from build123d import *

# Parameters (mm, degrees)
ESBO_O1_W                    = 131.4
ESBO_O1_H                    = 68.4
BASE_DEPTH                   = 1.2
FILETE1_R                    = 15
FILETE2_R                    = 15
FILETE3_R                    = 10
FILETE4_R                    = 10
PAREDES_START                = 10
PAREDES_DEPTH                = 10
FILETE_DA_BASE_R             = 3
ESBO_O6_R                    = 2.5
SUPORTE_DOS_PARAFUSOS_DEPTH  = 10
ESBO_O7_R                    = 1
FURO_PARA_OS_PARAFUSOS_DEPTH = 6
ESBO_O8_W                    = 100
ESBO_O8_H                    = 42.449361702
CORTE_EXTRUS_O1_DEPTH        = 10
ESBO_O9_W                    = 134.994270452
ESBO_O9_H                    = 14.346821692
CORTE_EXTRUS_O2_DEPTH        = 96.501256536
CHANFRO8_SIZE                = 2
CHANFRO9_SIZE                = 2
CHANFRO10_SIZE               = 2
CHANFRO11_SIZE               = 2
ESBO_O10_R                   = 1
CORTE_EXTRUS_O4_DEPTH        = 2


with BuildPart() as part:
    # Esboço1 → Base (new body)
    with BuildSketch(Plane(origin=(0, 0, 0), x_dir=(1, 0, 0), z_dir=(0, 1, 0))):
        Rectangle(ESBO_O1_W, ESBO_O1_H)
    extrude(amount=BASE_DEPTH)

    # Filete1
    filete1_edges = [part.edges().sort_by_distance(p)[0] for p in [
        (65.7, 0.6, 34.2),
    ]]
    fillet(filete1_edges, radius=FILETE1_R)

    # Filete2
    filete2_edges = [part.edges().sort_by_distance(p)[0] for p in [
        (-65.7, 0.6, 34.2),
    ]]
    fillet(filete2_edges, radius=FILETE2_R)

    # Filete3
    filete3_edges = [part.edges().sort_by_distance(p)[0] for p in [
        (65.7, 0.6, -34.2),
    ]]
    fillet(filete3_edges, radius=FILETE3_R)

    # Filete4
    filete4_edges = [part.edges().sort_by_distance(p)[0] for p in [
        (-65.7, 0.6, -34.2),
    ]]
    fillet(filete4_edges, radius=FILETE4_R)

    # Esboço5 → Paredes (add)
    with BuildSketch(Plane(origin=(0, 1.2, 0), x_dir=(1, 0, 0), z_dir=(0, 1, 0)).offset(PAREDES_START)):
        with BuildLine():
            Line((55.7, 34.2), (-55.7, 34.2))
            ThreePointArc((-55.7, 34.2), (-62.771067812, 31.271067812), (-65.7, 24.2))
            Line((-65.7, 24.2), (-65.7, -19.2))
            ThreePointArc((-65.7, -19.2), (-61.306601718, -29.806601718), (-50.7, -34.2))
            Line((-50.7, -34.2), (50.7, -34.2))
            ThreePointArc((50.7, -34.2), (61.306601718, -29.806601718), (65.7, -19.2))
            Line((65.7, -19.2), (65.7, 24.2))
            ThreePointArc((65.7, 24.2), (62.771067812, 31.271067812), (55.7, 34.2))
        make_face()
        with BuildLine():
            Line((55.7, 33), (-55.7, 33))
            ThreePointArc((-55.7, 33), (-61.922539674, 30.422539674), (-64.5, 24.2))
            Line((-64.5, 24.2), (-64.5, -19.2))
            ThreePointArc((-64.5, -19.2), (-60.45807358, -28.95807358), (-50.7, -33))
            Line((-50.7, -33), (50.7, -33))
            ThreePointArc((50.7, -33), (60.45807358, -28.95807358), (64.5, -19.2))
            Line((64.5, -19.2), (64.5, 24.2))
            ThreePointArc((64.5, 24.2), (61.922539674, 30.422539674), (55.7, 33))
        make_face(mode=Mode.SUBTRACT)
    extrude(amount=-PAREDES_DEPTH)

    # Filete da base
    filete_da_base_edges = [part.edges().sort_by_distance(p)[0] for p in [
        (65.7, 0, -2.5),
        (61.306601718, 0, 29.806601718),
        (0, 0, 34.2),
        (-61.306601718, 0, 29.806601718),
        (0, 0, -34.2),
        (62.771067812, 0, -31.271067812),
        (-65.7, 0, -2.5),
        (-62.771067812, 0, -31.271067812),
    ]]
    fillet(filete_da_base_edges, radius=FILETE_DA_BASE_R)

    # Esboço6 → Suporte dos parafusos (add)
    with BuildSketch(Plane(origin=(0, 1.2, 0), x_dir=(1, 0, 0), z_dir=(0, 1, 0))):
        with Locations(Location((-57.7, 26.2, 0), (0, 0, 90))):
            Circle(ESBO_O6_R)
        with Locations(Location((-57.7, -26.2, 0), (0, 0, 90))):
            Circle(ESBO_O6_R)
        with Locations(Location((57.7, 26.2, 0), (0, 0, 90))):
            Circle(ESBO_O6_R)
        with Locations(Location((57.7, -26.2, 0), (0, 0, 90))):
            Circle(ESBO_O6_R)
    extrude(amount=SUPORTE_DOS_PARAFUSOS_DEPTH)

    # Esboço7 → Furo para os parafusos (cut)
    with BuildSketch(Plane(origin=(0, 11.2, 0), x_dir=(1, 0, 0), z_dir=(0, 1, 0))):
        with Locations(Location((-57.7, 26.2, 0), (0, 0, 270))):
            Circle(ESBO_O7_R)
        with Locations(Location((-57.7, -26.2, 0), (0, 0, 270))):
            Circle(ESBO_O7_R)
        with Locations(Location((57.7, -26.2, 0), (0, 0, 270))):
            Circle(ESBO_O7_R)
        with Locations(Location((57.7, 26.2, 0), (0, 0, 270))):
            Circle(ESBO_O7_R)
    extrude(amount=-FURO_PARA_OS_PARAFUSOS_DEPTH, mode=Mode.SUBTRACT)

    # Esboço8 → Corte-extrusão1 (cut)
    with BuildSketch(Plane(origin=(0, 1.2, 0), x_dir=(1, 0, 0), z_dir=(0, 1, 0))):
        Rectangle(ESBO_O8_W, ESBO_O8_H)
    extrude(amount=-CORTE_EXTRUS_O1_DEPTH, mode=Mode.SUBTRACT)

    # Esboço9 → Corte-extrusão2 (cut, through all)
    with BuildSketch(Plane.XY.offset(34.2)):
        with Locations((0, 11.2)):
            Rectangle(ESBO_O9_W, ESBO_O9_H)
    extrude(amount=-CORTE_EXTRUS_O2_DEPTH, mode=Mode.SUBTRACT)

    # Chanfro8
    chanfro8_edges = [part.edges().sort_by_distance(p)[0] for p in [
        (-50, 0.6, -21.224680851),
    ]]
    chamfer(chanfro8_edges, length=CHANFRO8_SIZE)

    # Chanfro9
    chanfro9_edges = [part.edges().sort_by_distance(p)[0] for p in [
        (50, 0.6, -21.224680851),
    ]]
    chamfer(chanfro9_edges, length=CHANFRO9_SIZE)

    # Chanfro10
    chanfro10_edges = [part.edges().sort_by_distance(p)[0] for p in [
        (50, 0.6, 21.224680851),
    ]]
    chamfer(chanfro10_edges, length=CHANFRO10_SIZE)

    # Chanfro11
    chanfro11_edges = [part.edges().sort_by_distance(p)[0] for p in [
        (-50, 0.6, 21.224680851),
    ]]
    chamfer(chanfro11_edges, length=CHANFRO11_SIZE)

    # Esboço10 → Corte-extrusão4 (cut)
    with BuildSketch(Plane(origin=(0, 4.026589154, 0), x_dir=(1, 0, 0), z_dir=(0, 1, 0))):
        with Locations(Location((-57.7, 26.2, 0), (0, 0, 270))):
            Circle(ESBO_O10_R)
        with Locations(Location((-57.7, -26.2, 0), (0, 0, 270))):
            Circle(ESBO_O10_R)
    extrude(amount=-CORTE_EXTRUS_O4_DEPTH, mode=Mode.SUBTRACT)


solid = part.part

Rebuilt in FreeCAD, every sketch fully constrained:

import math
import FreeCAD as App
import Part
import Sketcher

V = App.Vector
Q = App.Units.Quantity


def edges_at(feature, points):
    """Names of the edges that pass closest to the given points."""
    edges = feature.Shape.Edges
    near = lambda p: min(range(len(edges)), key=lambda i: edges[i].distToShape(Part.Vertex(*p))[0])
    return sorted({f"Edge{near(p) + 1}" for p in points})


def add_polygon(sketch, points):
    """Adds a closed chain of lines whose ends are joined by coincident constraints."""
    first, n = sketch.GeometryCount, len(points)
    for a, b in zip(points, points[1:] + points[:1]):
        sketch.addGeometry(Part.LineSegment(App.Vector(*a, 0), App.Vector(*b, 0)), False)
    for i in range(n):
        sketch.addConstraint(Sketcher.Constraint("Coincident", first + i, 2, first + (i + 1) % n, 1))

doc = App.newDocument("Part")
body = doc.addObject("PartDesign::Body", "Body")

sketch1 = body.newObject("Sketcher::SketchObject", "Sketch")
sketch1.AttachmentSupport = (doc.getObject("XZ_Plane"), [""])
sketch1.MapMode = "FlatFace"
add_polygon(sketch1, [(-65.7, -34.2), (-65.7, 34.2), (65.7, 34.2), (65.7, -34.2)])
sketch1.addConstraint([
    Sketcher.Constraint("Vertical", 0),
    Sketcher.Constraint("Horizontal", 1),
    Sketcher.Constraint("Vertical", 2),
    Sketcher.Constraint("Horizontal", 3),
    Sketcher.Constraint("Symmetric", 0, 2, 2, 2, -1, 1),
    Sketcher.Constraint("DistanceX", 1, 1, 1, 2, Q("131.4 mm")),
    Sketcher.Constraint("DistanceY", 0, 1, 0, 2, Q("68.4 mm")),
])
pad1 = body.newObject("PartDesign::Pad", "Pad")
pad1.Profile = sketch1
pad1.Length = 1.2
pad1.Reversed = True
doc.recompute()

fillet = body.newObject("PartDesign::Fillet", "Fillet")
fillet.Base = (pad1, edges_at(pad1, [(65.7, 0.6, 34.2)]))
fillet.Radius = 15
doc.recompute()

fillet2 = body.newObject("PartDesign::Fillet", "Fillet001")
fillet2.Base = (fillet, edges_at(fillet, [(-65.7, 0.6, 34.2)]))
fillet2.Radius = 15
doc.recompute()

fillet3 = body.newObject("PartDesign::Fillet", "Fillet002")
fillet3.Base = (fillet2, edges_at(fillet2, [(65.7, 0.6, -34.2)]))
fillet3.Radius = 10
doc.recompute()

fillet4 = body.newObject("PartDesign::Fillet", "Fillet003")
fillet4.Base = (fillet3, edges_at(fillet3, [(-65.7, 0.6, -34.2)]))
fillet4.Radius = 10

sketch2 = body.newObject("Sketcher::SketchObject", "Sketch001")
sketch2.AttachmentSupport = (doc.getObject("XZ_Plane"), [""])
sketch2.MapMode = "FlatFace"
sketch2.AttachmentOffset = App.Placement(V(0, 0, -11.2), App.Rotation())
sketch2.addGeometry([
    Part.LineSegment(V(55.7, -34.2, 0), V(-55.7, -34.2, 0)),
    Part.ArcOfCircle(Part.Circle(V(-55.7, -24.2, 0), V(0, 0, 1), 10), math.radians(180), math.radians(270)),
    Part.LineSegment(V(-65.7, -24.2, 0), V(-65.7, 19.2, 0)),
    Part.ArcOfCircle(Part.Circle(V(-50.7, 19.2, 0), V(0, 0, 1), 15), math.radians(90), math.radians(180)),
    Part.LineSegment(V(-50.7, 34.2, 0), V(50.7, 34.2, 0)),
    Part.ArcOfCircle(Part.Circle(V(50.7, 19.2, 0), V(0, 0, 1), 15), math.radians(0), math.radians(90)),
    Part.LineSegment(V(65.7, 19.2, 0), V(65.7, -24.2, 0)),
    Part.ArcOfCircle(Part.Circle(V(55.7, -24.2, 0), V(0, 0, 1), 10), math.radians(-90), math.radians(0)),
    Part.LineSegment(V(-55.7, -33, 0), V(55.7, -33, 0)),
    Part.ArcOfCircle(Part.Circle(V(55.7, -24.2, 0), V(0, 0, 1), 8.8), math.radians(-90), math.radians(0)),
    Part.LineSegment(V(64.5, -24.2, 0), V(64.5, 19.2, 0)),
    Part.ArcOfCircle(Part.Circle(V(50.7, 19.2, 0), V(0, 0, 1), 13.8), math.radians(0), math.radians(90)),
    Part.LineSegment(V(50.7, 33, 0), V(-50.7, 33, 0)),
    Part.ArcOfCircle(Part.Circle(V(-50.7, 19.2, 0), V(0, 0, 1), 13.8), math.radians(90), math.radians(180)),
    Part.LineSegment(V(-64.5, 19.2, 0), V(-64.5, -24.2, 0)),
    Part.ArcOfCircle(Part.Circle(V(-55.7, -24.2, 0), V(0, 0, 1), 8.8), math.radians(-180), math.radians(-90)),
], False)
sketch2.addConstraint([
    Sketcher.Constraint("Tangent", 0, 2, 1, 2),
    Sketcher.Constraint("Tangent", 1, 1, 2, 1),
    Sketcher.Constraint("Tangent", 2, 2, 3, 2),
    Sketcher.Constraint("Tangent", 3, 1, 4, 1),
    Sketcher.Constraint("Tangent", 4, 2, 5, 2),
    Sketcher.Constraint("Tangent", 5, 1, 6, 1),
    Sketcher.Constraint("Tangent", 6, 2, 7, 2),
    Sketcher.Constraint("Tangent", 7, 1, 0, 1),
    Sketcher.Constraint("Tangent", 8, 2, 9, 1),
    Sketcher.Constraint("Tangent", 9, 2, 10, 1),
    Sketcher.Constraint("Tangent", 10, 2, 11, 1),
    Sketcher.Constraint("Tangent", 11, 2, 12, 1),
    Sketcher.Constraint("Tangent", 12, 2, 13, 1),
    Sketcher.Constraint("Tangent", 13, 2, 14, 1),
    Sketcher.Constraint("Tangent", 14, 2, 15, 1),
    Sketcher.Constraint("Tangent", 15, 2, 8, 1),
    Sketcher.Constraint("Horizontal", 0),
    Sketcher.Constraint("Vertical", 2),
    Sketcher.Constraint("Horizontal", 4),
    Sketcher.Constraint("Vertical", 6),
    Sketcher.Constraint("Horizontal", 8),
    Sketcher.Constraint("Vertical", 10),
    Sketcher.Constraint("Horizontal", 12),
    Sketcher.Constraint("Vertical", 14),
    Sketcher.Constraint("Coincident", 9, 3, 7, 3),
    Sketcher.Constraint("Coincident", 11, 3, 5, 3),
    Sketcher.Constraint("Coincident", 13, 3, 3, 3),
    Sketcher.Constraint("Equal", 3, 5),
    Sketcher.Constraint("Equal", 1, 7),
    Sketcher.Constraint("Equal", 9, 15),
    Sketcher.Constraint("Radius", 1, Q("10 mm")),
    Sketcher.Constraint("Radius", 3, Q("15 mm")),
    Sketcher.Constraint("Radius", 9, Q("8.8 mm")),
    Sketcher.Constraint("DistanceX", 0, 2, 0, 1, Q("111.4 mm")),
    Sketcher.Constraint("DistanceY", 2, 1, 2, 2, Q("43.4 mm")),
    Sketcher.Constraint("DistanceY", 8, 2, -1, 1, Q("33 mm")),
    Sketcher.Constraint("DistanceX", 1, 3, -1, 1, Q("55.7 mm")),
])
pad2 = body.newObject("PartDesign::Pad", "Pad001")
pad2.Profile = sketch2
pad2.Length = 10
doc.recompute()

fillet5 = body.newObject("PartDesign::Fillet", "Fillet004")
fillet5.Base = (pad2, edges_at(pad2, [
    (65.7, 0, -2.5),
    (61.307, 0, 29.807),
    (0, 0, 34.2),
    (-61.307, 0, 29.807),
    (0, 0, -34.2),
    (62.771, 0, -31.271),
    (-65.7, 0, -2.5),
    (-62.771, 0, -31.271),
]))
fillet5.Radius = 3

sketch3 = body.newObject("Sketcher::SketchObject", "Sketch002")
sketch3.AttachmentSupport = (doc.getObject("XZ_Plane"), [""])
sketch3.MapMode = "FlatFace"
sketch3.AttachmentOffset = App.Placement(V(0, 0, -1.2), App.Rotation())
sketch3.addGeometry([
    Part.Circle(V(-57.7, -26.2, 0), V(0, 0, 1), 2.5),
    Part.Circle(V(-57.7, 26.2, 0), V(0, 0, 1), 2.5),
    Part.Circle(V(57.7, -26.2, 0), V(0, 0, 1), 2.5),
    Part.Circle(V(57.7, 26.2, 0), V(0, 0, 1), 2.5),
], False)
sketch3.addConstraint([
    Sketcher.Constraint("Equal", 0, 1),
    Sketcher.Constraint("Equal", 1, 2),
    Sketcher.Constraint("Equal", 2, 3),
    Sketcher.Constraint("Symmetric", 1, 3, 2, 3, -1, 1),
    Sketcher.Constraint("Symmetric", 0, 3, 3, 3, -1, 1),
    Sketcher.Constraint("Symmetric", 0, 3, 2, 3, -2),
    Sketcher.Constraint("Diameter", 0, Q("5 mm")),
    Sketcher.Constraint("DistanceX", 0, 3, -1, 1, Q("57.7 mm")),
    Sketcher.Constraint("DistanceY", 0, 3, -1, 1, Q("26.2 mm")),
])
pad3 = body.newObject("PartDesign::Pad", "Pad002")
pad3.Profile = sketch3
pad3.Length = 10
pad3.Reversed = True

sketch4 = body.newObject("Sketcher::SketchObject", "Sketch003")
sketch4.AttachmentSupport = (doc.getObject("XZ_Plane"), [""])
sketch4.MapMode = "FlatFace"
sketch4.AttachmentOffset = App.Placement(V(0, 0, -11.2), App.Rotation())
sketch4.addGeometry([
    Part.Circle(V(-57.7, -26.2, 0), V(0, 0, 1), 1),
    Part.Circle(V(-57.7, 26.2, 0), V(0, 0, 1), 1),
    Part.Circle(V(57.7, 26.2, 0), V(0, 0, 1), 1),
    Part.Circle(V(57.7, -26.2, 0), V(0, 0, 1), 1),
], False)
sketch4.addConstraint([
    Sketcher.Constraint("Equal", 0, 1),
    Sketcher.Constraint("Equal", 1, 2),
    Sketcher.Constraint("Equal", 2, 3),
    Sketcher.Constraint("Symmetric", 0, 3, 2, 3, -1, 1),
    Sketcher.Constraint("Symmetric", 1, 3, 3, 3, -1, 1),
    Sketcher.Constraint("Symmetric", 1, 3, 2, 3, -2),
    Sketcher.Constraint("Diameter", 0, Q("2 mm")),
    Sketcher.Constraint("DistanceX", 0, 3, -1, 1, Q("57.7 mm")),
    Sketcher.Constraint("DistanceY", 0, 3, -1, 1, Q("26.2 mm")),
])
pocket1 = body.newObject("PartDesign::Pocket", "Pocket")
pocket1.Profile = sketch4
pocket1.Length = 6
pocket1.Reversed = True

sketch5 = body.newObject("Sketcher::SketchObject", "Sketch004")
sketch5.AttachmentSupport = (doc.getObject("XZ_Plane"), [""])
sketch5.MapMode = "FlatFace"
sketch5.AttachmentOffset = App.Placement(V(0, 0, -1.2), App.Rotation())
add_polygon(sketch5, [(-50, -21.224681), (-50, 21.224681), (50, 21.224681), (50, -21.224681)])
sketch5.addConstraint([
    Sketcher.Constraint("Vertical", 0),
    Sketcher.Constraint("Horizontal", 1),
    Sketcher.Constraint("Vertical", 2),
    Sketcher.Constraint("Horizontal", 3),
    Sketcher.Constraint("Symmetric", 0, 2, 2, 2, -1, 1),
    Sketcher.Constraint("DistanceX", 1, 1, 1, 2, Q("100 mm")),
    Sketcher.Constraint("DistanceY", 0, 1, 0, 2, Q("42.449362 mm")),
])
pocket2 = body.newObject("PartDesign::Pocket", "Pocket001")
pocket2.Profile = sketch5
pocket2.Length = 10
pocket2.Reversed = True

sketch6 = body.newObject("Sketcher::SketchObject", "Sketch005")
sketch6.AttachmentSupport = (doc.getObject("XY_Plane"), [""])
sketch6.MapMode = "FlatFace"
sketch6.AttachmentOffset = App.Placement(V(0, 0, 34.2), App.Rotation())
add_polygon(sketch6, [(-67.497135, 18.373411), (-67.497135, 4.026589), (67.497135, 4.026589), (67.497135, 18.373411)])
sketch6.addConstraint([
    Sketcher.Constraint("Vertical", 0),
    Sketcher.Constraint("Horizontal", 1),
    Sketcher.Constraint("Vertical", 2),
    Sketcher.Constraint("Horizontal", 3),
    Sketcher.Constraint("DistanceX", 1, 1, 1, 2, Q("134.99427 mm")),
    Sketcher.Constraint("DistanceY", 0, 2, 0, 1, Q("14.346822 mm")),
    Sketcher.Constraint("DistanceY", -1, 1, 0, 2, Q("4.026589 mm")),
    Sketcher.Constraint("DistanceX", 0, 2, -1, 1, Q("67.497135 mm")),
])
pocket3 = body.newObject("PartDesign::Pocket", "Pocket002")
pocket3.Profile = sketch6
pocket3.Type = "ThroughAll"
doc.recompute()

chamfer = body.newObject("PartDesign::Chamfer", "Chamfer")
chamfer.Base = (pocket3, edges_at(pocket3, [(-50, 0.6, -21.225)]))
chamfer.Size = 2
doc.recompute()

chamfer2 = body.newObject("PartDesign::Chamfer", "Chamfer001")
chamfer2.Base = (chamfer, edges_at(chamfer, [(50, 0.6, -21.225)]))
chamfer2.Size = 2
doc.recompute()

chamfer3 = body.newObject("PartDesign::Chamfer", "Chamfer002")
chamfer3.Base = (chamfer2, edges_at(chamfer2, [(50, 0.6, 21.225)]))
chamfer3.Size = 2
doc.recompute()

chamfer4 = body.newObject("PartDesign::Chamfer", "Chamfer003")
chamfer4.Base = (chamfer3, edges_at(chamfer3, [(-50, 0.6, 21.225)]))
chamfer4.Size = 2

sketch7 = body.newObject("Sketcher::SketchObject", "Sketch006")
sketch7.AttachmentSupport = (doc.getObject("XZ_Plane"), [""])
sketch7.MapMode = "FlatFace"
sketch7.AttachmentOffset = App.Placement(V(0, 0, -4.026589), App.Rotation())
sketch7.addGeometry([
    Part.Circle(V(-57.7, -26.2, 0), V(0, 0, 1), 1),
    Part.Circle(V(-57.7, 26.2, 0), V(0, 0, 1), 1),
], False)
sketch7.addConstraint([
    Sketcher.Constraint("Equal", 0, 1),
    Sketcher.Constraint("Symmetric", 0, 3, 1, 3, -1),
    Sketcher.Constraint("Diameter", 0, Q("2 mm")),
    Sketcher.Constraint("DistanceX", 0, 3, -1, 1, Q("57.7 mm")),
    Sketcher.Constraint("DistanceY", 0, 3, -1, 1, Q("26.2 mm")),
])
pocket4 = body.newObject("PartDesign::Pocket", "Pocket003")
pocket4.Profile = sketch7
pocket4.Length = 2
pocket4.Reversed = True

doc.recompute()
